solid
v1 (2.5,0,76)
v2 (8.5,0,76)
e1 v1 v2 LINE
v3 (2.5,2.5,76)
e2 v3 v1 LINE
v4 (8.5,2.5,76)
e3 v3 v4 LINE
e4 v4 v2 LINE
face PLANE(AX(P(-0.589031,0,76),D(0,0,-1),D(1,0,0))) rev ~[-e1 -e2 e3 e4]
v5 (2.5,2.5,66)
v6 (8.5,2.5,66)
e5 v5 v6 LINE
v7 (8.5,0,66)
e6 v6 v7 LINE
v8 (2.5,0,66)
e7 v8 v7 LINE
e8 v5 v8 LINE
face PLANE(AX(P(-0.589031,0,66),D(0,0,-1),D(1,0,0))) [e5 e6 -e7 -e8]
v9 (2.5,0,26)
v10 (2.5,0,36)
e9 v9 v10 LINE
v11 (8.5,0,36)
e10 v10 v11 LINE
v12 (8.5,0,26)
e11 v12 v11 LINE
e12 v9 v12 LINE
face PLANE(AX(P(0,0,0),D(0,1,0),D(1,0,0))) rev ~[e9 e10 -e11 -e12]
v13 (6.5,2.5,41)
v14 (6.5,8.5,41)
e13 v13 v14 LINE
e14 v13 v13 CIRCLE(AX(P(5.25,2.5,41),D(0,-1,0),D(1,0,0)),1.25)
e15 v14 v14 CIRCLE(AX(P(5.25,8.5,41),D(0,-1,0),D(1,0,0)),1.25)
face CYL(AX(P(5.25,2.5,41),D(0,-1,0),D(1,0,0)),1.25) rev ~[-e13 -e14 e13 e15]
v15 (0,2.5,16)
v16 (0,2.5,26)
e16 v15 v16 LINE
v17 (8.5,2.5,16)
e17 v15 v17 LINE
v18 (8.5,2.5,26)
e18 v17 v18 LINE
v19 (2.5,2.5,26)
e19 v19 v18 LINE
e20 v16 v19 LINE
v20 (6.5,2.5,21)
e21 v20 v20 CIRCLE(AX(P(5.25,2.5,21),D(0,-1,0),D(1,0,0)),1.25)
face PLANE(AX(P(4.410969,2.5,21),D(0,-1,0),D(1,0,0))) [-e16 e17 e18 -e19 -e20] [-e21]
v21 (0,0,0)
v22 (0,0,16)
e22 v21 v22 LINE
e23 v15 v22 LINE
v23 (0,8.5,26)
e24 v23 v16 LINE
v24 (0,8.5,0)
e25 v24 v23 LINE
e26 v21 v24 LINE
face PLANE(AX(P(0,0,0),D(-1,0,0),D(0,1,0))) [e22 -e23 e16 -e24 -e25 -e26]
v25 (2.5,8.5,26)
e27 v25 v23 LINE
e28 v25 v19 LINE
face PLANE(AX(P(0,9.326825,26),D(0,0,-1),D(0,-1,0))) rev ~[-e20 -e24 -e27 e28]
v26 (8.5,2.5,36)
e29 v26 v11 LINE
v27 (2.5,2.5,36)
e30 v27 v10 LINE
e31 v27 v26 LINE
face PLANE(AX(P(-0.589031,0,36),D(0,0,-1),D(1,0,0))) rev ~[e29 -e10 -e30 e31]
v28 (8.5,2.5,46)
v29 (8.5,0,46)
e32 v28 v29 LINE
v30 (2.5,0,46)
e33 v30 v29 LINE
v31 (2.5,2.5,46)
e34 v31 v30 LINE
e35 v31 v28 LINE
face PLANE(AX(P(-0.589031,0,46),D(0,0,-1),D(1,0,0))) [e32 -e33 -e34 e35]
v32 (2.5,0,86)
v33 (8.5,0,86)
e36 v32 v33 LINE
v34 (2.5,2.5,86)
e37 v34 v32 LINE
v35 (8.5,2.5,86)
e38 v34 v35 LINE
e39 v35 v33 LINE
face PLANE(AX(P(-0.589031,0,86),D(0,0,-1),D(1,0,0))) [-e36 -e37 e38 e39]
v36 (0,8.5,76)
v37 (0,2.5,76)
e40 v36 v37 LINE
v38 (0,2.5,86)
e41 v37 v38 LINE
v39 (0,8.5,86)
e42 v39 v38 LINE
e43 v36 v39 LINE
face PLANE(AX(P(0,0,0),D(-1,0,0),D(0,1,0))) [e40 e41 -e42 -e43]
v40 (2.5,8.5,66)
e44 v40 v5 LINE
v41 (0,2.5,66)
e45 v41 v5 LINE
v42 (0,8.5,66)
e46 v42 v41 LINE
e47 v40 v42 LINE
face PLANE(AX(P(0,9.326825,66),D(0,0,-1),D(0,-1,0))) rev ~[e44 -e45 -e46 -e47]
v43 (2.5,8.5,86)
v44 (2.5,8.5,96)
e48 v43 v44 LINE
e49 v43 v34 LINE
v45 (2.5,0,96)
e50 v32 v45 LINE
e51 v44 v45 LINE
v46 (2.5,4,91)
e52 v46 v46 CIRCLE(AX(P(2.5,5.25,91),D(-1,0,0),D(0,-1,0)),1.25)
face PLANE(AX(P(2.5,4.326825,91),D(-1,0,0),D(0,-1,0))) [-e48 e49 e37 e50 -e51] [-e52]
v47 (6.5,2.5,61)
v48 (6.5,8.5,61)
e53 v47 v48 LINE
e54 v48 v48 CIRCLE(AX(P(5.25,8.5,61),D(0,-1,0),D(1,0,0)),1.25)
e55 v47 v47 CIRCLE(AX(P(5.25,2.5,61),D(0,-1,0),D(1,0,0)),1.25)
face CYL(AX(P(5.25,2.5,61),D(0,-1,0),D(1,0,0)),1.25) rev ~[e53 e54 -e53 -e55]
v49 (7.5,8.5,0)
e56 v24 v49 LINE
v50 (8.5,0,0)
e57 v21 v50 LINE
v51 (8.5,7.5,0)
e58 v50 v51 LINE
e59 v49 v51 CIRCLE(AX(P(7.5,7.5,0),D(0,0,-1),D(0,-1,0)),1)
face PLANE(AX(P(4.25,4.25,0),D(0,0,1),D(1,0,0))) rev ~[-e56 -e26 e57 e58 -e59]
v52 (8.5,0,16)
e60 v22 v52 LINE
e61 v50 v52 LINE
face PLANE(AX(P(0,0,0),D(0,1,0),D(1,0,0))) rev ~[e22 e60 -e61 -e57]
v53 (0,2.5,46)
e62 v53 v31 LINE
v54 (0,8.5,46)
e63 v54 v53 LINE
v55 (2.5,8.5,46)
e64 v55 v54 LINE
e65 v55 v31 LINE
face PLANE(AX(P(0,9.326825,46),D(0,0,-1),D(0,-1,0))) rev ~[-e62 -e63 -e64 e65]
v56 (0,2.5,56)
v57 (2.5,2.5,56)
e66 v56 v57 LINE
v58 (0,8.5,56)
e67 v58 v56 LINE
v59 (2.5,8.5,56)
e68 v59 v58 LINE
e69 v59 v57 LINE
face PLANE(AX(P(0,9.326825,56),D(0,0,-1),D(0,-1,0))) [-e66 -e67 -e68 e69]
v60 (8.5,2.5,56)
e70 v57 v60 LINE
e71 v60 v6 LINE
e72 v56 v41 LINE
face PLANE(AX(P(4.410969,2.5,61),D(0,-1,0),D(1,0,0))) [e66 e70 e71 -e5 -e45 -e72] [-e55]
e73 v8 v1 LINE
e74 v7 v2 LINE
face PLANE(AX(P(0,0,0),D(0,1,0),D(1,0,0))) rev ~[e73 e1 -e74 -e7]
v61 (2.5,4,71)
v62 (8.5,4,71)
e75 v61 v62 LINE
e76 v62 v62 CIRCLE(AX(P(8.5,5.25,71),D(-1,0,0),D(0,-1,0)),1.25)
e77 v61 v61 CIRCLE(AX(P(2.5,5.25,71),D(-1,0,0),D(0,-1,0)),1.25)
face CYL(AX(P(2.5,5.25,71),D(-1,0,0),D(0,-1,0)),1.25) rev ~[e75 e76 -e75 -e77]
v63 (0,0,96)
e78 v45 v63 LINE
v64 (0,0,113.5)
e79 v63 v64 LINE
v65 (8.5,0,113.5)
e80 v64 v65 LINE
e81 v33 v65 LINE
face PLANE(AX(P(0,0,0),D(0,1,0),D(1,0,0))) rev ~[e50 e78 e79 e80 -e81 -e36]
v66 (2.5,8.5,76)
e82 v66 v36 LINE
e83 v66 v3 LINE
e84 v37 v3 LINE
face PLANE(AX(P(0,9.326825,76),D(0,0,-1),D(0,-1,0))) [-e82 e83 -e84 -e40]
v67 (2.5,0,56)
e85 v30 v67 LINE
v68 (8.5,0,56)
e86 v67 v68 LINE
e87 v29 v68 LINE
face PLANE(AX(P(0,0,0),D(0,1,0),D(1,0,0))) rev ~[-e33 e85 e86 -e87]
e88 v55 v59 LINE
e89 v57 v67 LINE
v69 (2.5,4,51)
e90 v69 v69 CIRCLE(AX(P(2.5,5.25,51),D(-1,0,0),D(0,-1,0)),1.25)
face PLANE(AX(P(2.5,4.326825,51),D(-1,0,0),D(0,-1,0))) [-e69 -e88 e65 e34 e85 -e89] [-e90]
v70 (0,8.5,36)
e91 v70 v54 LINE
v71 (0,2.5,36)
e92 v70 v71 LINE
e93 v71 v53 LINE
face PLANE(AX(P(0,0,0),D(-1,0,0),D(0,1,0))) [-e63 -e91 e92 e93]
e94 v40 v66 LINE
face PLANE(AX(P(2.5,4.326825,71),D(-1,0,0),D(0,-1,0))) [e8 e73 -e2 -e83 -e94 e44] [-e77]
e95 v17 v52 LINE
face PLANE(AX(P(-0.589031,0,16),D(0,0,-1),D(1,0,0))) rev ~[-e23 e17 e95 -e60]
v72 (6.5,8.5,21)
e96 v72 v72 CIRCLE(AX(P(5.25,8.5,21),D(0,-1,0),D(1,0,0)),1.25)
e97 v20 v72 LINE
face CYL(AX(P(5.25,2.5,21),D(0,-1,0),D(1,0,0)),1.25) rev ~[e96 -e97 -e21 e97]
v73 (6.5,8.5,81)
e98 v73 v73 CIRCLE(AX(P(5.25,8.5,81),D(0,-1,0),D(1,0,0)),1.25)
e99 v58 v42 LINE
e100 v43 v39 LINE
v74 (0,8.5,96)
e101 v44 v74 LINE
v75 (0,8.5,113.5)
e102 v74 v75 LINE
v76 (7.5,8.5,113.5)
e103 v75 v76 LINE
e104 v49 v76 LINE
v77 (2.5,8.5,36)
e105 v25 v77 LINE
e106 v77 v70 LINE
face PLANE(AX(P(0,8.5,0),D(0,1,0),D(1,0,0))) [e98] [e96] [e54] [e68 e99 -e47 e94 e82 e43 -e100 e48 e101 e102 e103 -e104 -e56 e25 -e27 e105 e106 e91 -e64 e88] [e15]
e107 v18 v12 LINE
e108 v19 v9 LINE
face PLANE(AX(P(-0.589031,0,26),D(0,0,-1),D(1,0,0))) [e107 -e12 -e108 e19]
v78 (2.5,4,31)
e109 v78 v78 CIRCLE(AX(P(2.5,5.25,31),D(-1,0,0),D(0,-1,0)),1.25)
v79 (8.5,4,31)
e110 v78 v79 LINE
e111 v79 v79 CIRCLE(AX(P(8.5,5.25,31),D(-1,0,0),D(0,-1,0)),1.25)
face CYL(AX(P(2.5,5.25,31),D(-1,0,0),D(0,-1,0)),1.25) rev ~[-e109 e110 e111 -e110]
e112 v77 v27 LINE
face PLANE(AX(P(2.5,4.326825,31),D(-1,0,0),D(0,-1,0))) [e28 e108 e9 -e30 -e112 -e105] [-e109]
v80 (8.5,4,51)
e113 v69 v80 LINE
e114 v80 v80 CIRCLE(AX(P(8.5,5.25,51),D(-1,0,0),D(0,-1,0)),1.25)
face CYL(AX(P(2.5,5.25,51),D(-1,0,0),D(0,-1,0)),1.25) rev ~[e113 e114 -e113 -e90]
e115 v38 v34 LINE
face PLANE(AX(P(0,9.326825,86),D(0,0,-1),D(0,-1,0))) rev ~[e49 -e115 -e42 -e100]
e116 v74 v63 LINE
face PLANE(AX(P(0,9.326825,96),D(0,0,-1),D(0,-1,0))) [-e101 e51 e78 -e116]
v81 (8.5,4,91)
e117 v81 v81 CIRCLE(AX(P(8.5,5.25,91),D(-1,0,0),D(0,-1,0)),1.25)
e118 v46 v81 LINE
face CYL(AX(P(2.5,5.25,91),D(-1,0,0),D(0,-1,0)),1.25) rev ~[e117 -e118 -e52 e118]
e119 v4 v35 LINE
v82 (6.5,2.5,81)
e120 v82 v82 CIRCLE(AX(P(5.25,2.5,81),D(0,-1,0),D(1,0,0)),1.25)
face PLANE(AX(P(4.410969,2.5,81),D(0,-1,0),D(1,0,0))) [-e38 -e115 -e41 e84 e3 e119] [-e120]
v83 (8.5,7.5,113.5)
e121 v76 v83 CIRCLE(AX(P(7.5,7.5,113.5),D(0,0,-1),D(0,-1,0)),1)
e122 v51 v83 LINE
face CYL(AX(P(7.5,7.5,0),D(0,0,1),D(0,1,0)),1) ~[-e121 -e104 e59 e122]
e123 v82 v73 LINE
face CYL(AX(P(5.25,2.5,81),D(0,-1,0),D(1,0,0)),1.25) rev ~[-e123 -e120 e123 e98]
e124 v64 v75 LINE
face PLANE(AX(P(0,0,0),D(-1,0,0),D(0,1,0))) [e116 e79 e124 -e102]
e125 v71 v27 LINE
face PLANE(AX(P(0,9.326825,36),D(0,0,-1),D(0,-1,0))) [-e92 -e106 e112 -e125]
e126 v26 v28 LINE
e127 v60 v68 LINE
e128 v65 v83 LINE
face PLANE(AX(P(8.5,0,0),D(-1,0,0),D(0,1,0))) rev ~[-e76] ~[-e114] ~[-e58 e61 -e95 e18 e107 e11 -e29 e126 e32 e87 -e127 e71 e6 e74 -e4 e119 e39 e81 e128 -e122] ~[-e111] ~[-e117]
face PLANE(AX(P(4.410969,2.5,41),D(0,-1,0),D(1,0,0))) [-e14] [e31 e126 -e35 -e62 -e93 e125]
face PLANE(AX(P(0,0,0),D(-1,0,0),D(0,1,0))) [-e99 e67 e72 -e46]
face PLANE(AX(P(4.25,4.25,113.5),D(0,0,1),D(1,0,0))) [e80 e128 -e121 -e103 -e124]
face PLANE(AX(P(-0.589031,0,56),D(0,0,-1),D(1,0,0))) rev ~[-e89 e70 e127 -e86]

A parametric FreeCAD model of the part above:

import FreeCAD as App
import Part
import Sketcher

V = App.Vector
Q = App.Units.Quantity


def edges_at(feature, points):
    """Names of the edges that pass closest to the given points."""
    edges = feature.Shape.Edges
    near = lambda p: min(range(len(edges)), key=lambda i: edges[i].distToShape(Part.Vertex(*p))[0])
    return sorted({f"Edge{near(p) + 1}" for p in points})

doc = App.newDocument("Part")
body = doc.addObject("PartDesign::Body", "Body")

sketch1 = body.newObject("Sketcher::SketchObject", "Sketch")
sketch1.AttachmentSupport = (doc.getObject("XY_Plane"), [""])
sketch1.MapMode = "FlatFace"
sketch1.addGeometry([
    Part.LineSegment(V(0, 8, 0), V(0, 0, 0)),
    Part.LineSegment(V(0, 0, 0), V(8, 0, 0)),
    Part.LineSegment(V(8, 0, 0), V(8, 8, 0)),
    Part.LineSegment(V(8, 8, 0), V(0, 8, 0)),
], False)
sketch1.addConstraint([
    Sketcher.Constraint("Coincident", 0, 2, 1, 1),
    Sketcher.Constraint("Coincident", 1, 2, 2, 1),
    Sketcher.Constraint("Coincident", 2, 2, 3, 1),
    Sketcher.Constraint("Coincident", 3, 2, 0, 1),
    Sketcher.Constraint("Vertical", 0),
    Sketcher.Constraint("Horizontal", 1),
    Sketcher.Constraint("Vertical", 2),
    Sketcher.Constraint("Horizontal", 3),
    Sketcher.Constraint("Coincident", 0, 2, -1, 1),
    Sketcher.Constraint("Equal", 3, 0),
    Sketcher.Constraint("DistanceX", 1, 1, 1, 2, Q("8.5 mm")),
])
pad1 = body.newObject("PartDesign::Pad", "Pad")
pad1.Profile = sketch1
pad1.Length = 113.5

sketch2 = body.newObject("Sketcher::SketchObject", "Sketch001")
sketch2.AttachmentSupport = (doc.getObject("XZ_Plane"), [""])
sketch2.MapMode = "FlatFace"
sketch2.addGeometry([
    Part.LineSegment(V(-1, 26, 0), V(-1, 16, 0)),
    Part.LineSegment(V(-1, 16, 0), V(9, 16, 0)),
    Part.LineSegment(V(9, 16, 0), V(9, 26, 0)),
    Part.LineSegment(V(9, 26, 0), V(-1, 26, 0)),
], False)
sketch2.addConstraint([
    Sketcher.Constraint("Coincident", 0, 2, 1, 1),
    Sketcher.Constraint("Coincident", 1, 2, 2, 1),
    Sketcher.Constraint("Coincident", 2, 2, 3, 1),
    Sketcher.Constraint("Coincident", 3, 2, 0, 1),
    Sketcher.Constraint("Vertical", 0),
    Sketcher.Constraint("Horizontal", 1),
    Sketcher.Constraint("Vertical", 2),
    Sketcher.Constraint("Horizontal", 3),
    Sketcher.Constraint("Equal", 3, 0),
    Sketcher.Constraint("DistanceX", 1, 1, 1, 2, Q("10 mm")),
    Sketcher.Constraint("DistanceY", -1, 1, 0, 2, Q("16 mm")),
    Sketcher.Constraint("DistanceX", 0, 2, -1, 1, Q("0.589031 mm")),
])
pocket1 = body.newObject("PartDesign::Pocket", "Pocket")
pocket1.Profile = sketch2
pocket1.Length = 2.5
doc.recompute()

linearpattern = body.newObject("PartDesign::LinearPattern", "LinearPattern")
linearpattern.Originals = [pocket1]
linearpattern.Direction = (doc.getObject("Z_Axis"), [""])
linearpattern.Mode = "offset"
linearpattern.Offset = 20
linearpattern.Occurrences = 4
body.Tip = linearpattern

sketch3 = body.newObject("Sketcher::SketchObject", "Sketch002")
sketch3.AttachmentSupport = (doc.getObject("YZ_Plane"), [""])
sketch3.MapMode = "FlatFace"
sketch3.addGeometry([
    Part.LineSegment(V(9, 36, 0), V(9, 26, 0)),
    Part.LineSegment(V(9, 26, 0), V(-1, 26, 0)),
    Part.LineSegment(V(-1, 26, 0), V(-1, 36, 0)),
    Part.LineSegment(V(-1, 36, 0), V(9, 36, 0)),
], False)
sketch3.addConstraint([
    Sketcher.Constraint("Coincident", 0, 2, 1, 1),
    Sketcher.Constraint("Coincident", 1, 2, 2, 1),
    Sketcher.Constraint("Coincident", 2, 2, 3, 1),
    Sketcher.Constraint("Coincident", 3, 2, 0, 1),
    Sketcher.Constraint("Vertical", 0),
    Sketcher.Constraint("Horizontal", 1),
    Sketcher.Constraint("Vertical", 2),
    Sketcher.Constraint("Horizontal", 3),
    Sketcher.Constraint("Equal", 3, 0),
    Sketcher.Constraint("DistanceX", 1, 2, 1, 1, Q("10 mm")),
    Sketcher.Constraint("DistanceY", -1, 1, 0, 2, Q("26 mm")),
    Sketcher.Constraint("DistanceX", -1, 1, 0, 2, Q("9.326825 mm")),
])
pocket2 = body.newObject("PartDesign::Pocket", "Pocket001")
pocket2.Profile = sketch3
pocket2.Length = 2.5
pocket2.Reversed = True
doc.recompute()

linearpattern2 = body.newObject("PartDesign::LinearPattern", "LinearPattern001")
linearpattern2.Originals = [pocket2]
linearpattern2.Direction = (doc.getObject("Z_Axis"), [""])
linearpattern2.Mode = "offset"
linearpattern2.Offset = 20
linearpattern2.Occurrences = 4
body.Tip = linearpattern2
doc.recompute()

fillet = body.newObject("PartDesign::Fillet", "Fillet")
fillet.Base = (linearpattern2, edges_at(linearpattern2, [(8.5, 8.5, 56.75)]))
fillet.Radius = 1

sketch4 = body.newObject("Sketcher::SketchObject", "Sketch003")
sketch4.AttachmentSupport = (doc.getObject("XZ_Plane"), [""])
sketch4.MapMode = "FlatFace"
sketch4.AttachmentOffset = App.Placement(V(0, 0, -2.5), App.Rotation())
sketch4.addGeometry(Part.Circle(V(5.2, 21, 0), V(0, 0, 1), 1.2), False)
sketch4.addConstraint([
    Sketcher.Constraint("Diameter", 0, Q("2.5 mm")),
    Sketcher.Constraint("DistanceY", -1, 1, 0, 3, Q("21 mm")),
    Sketcher.Constraint("DistanceX", -1, 1, 0, 3, Q("5.25 mm")),
])
pocket3 = body.newObject("PartDesign::Pocket", "Pocket002")
pocket3.Profile = sketch4
pocket3.Type = "ThroughAll"
doc.recompute()

linearpattern3 = body.newObject("PartDesign::LinearPattern", "LinearPattern002")
linearpattern3.Originals = [pocket3]
linearpattern3.Direction = (doc.getObject("Z_Axis"), [""])
linearpattern3.Mode = "offset"
linearpattern3.Offset = 20
linearpattern3.Occurrences = 4
body.Tip = linearpattern3

sketch5 = body.newObject("Sketcher::SketchObject", "Sketch004")
sketch5.AttachmentSupport = (doc.getObject("YZ_Plane"), [""])
sketch5.MapMode = "FlatFace"
sketch5.AttachmentOffset = App.Placement(V(0, 0, 2.5), App.Rotation())
sketch5.addGeometry(Part.Circle(V(5.2, 31, 0), V(0, 0, 1), 1.2), False)
sketch5.addConstraint([
    Sketcher.Constraint("Diameter", 0, Q("2.5 mm")),
    Sketcher.Constraint("DistanceY", -1, 1, 0, 3, Q("31 mm")),
    Sketcher.Constraint("DistanceX", -1, 1, 0, 3, Q("5.25 mm")),
])
pocket4 = body.newObject("PartDesign::Pocket", "Pocket003")
pocket4.Profile = sketch5
pocket4.Type = "ThroughAll"
pocket4.Reversed = True
doc.recompute()

linearpattern4 = body.newObject("PartDesign::LinearPattern", "LinearPattern003")
linearpattern4.Originals = [pocket4]
linearpattern4.Direction = (doc.getObject("Z_Axis"), [""])
linearpattern4.Mode = "offset"
linearpattern4.Offset = 20
linearpattern4.Occurrences = 4
body.Tip = linearpattern4

doc.recompute()
